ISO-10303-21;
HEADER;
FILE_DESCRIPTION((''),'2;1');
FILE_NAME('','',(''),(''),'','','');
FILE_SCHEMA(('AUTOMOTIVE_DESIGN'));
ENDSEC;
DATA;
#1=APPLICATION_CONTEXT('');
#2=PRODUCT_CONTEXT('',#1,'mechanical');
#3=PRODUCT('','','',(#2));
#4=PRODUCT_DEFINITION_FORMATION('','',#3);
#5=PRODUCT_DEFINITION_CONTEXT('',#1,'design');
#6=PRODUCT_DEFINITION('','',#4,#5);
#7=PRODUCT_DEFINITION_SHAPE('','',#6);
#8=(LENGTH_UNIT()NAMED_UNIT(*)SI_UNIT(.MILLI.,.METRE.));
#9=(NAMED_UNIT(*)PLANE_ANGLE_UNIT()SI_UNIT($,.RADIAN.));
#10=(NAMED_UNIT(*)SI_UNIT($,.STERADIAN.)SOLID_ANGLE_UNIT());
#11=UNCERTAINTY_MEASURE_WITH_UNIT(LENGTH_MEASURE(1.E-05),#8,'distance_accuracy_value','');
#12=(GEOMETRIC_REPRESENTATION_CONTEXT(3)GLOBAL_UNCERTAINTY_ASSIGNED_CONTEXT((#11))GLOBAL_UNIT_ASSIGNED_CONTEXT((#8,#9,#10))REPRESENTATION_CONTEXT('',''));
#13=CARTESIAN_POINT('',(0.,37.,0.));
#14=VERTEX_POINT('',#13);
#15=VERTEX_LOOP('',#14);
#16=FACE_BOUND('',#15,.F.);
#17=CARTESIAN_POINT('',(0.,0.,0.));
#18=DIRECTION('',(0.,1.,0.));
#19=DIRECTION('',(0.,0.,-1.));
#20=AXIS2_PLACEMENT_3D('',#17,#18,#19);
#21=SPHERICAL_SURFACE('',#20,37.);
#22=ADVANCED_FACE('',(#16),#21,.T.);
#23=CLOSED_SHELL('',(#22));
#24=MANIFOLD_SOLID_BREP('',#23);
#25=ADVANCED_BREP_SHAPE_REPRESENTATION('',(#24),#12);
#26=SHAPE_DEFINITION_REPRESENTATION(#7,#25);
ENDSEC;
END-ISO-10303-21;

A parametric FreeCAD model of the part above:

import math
import FreeCAD as App
import Part
import Sketcher

V = App.Vector

doc = App.newDocument("Part")
body = doc.addObject("PartDesign::Body", "Body")

sketch1 = doc.addObject("Sketcher::SketchObject", "Sketch")
body.addObject(sketch1)
sketch1.AttachmentSupport = (doc.YZ_Plane, [""])
sketch1.MapMode = "FlatFace"
sketch1.addGeometry([
    Part.ArcOfCircle(Part.Circle(V(0, 0, 0), V(0, 0, 1), 37), math.radians(180), math.radians(360)),
    Part.LineSegment(V(37, 0, 0), V(-37, 0, 0)),
], False)
sketch1.addConstraint([
    Sketcher.Constraint("Coincident", 0, 1, 1, 2),
    Sketcher.Constraint("Coincident", 1, 1, 0, 2),
    Sketcher.Constraint("Horizontal", 1),
    Sketcher.Constraint("Coincident", 0, 3, -1, 1),
    Sketcher.Constraint("PointOnObject", 0, 1, -1),
    Sketcher.Constraint("Radius", 0, 37.0),
])
revolution = doc.addObject("PartDesign::Revolution", "Revolution")
body.addObject(revolution)
revolution.Profile = sketch1
revolution.ReferenceAxis = (sketch1, ["H_Axis"])
revolution.Angle = 360

doc.recompute()
